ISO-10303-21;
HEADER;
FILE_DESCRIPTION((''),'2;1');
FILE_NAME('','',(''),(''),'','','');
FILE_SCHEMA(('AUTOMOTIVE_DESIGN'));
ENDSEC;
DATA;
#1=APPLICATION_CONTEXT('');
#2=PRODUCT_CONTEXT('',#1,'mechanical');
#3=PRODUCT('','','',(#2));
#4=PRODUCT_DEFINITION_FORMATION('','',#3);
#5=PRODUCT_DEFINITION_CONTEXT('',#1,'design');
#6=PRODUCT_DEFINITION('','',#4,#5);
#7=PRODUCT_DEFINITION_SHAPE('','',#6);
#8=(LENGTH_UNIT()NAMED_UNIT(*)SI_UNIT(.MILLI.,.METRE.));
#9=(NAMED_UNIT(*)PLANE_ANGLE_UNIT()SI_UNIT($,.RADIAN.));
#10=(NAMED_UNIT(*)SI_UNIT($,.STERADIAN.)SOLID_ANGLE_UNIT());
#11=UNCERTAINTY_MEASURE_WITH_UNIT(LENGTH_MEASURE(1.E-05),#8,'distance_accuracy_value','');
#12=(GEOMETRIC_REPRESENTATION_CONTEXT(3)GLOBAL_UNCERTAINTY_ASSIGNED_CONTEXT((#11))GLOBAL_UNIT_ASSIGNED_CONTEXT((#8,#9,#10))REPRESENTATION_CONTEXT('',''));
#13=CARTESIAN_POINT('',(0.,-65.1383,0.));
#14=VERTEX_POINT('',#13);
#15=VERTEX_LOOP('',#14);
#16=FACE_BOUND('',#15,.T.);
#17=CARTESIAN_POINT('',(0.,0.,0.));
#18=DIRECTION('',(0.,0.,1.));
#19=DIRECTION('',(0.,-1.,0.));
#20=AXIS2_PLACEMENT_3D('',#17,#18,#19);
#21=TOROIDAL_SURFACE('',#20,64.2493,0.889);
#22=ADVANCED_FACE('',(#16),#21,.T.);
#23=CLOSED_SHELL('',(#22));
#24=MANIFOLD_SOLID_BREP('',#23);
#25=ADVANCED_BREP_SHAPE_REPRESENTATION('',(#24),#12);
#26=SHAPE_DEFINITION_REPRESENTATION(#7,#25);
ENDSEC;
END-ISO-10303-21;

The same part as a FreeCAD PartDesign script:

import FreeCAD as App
import Part
import Sketcher
from FreeCAD import Vector
Q = App.Units.Quantity

doc = App.newDocument("Part")
params = doc.addObject("Spreadsheet::Sheet", "Params")
for row, (alias, value) in enumerate([
    ("sketch1_diameter", "0.07 in"),
    ("revolution_angle", "360 deg"),
], start=1):
    params.set(f"A{row}", alias)
    params.set(f"B{row}", "=" + value)
    params.setAlias(f"B{row}", alias)

body = doc.addObject("PartDesign::Body", "Body")

sketch1 = doc.addObject("Sketcher::SketchObject", "Sketch")
body.addObject(sketch1)
sketch1.AttachmentSupport = (doc.YZ_Plane, [""])
sketch1.MapMode = "FlatFace"
sketch1.addGeometry(Part.Circle(Vector(64.2, 0, 0), Vector(0, 0, 1), 0.9), False)
sketch1.addConstraint([
    Sketcher.Constraint("PointOnObject", 0, 3, -1),
    Sketcher.Constraint("Diameter", 0, Q("0.07 in")),
    Sketcher.Constraint("DistanceX", -1, 1, 0, 3, Q("2.5295 in")),
])
sketch1.setExpression("Constraints[1]", "Params.sketch1_diameter")
revolution = doc.addObject("PartDesign::Revolution", "Revolution")
body.addObject(revolution)
revolution.Profile = sketch1
revolution.ReferenceAxis = (sketch1, ["V_Axis"])
revolution.setExpression("Angle", "Params.revolution_angle")

doc.recompute()
